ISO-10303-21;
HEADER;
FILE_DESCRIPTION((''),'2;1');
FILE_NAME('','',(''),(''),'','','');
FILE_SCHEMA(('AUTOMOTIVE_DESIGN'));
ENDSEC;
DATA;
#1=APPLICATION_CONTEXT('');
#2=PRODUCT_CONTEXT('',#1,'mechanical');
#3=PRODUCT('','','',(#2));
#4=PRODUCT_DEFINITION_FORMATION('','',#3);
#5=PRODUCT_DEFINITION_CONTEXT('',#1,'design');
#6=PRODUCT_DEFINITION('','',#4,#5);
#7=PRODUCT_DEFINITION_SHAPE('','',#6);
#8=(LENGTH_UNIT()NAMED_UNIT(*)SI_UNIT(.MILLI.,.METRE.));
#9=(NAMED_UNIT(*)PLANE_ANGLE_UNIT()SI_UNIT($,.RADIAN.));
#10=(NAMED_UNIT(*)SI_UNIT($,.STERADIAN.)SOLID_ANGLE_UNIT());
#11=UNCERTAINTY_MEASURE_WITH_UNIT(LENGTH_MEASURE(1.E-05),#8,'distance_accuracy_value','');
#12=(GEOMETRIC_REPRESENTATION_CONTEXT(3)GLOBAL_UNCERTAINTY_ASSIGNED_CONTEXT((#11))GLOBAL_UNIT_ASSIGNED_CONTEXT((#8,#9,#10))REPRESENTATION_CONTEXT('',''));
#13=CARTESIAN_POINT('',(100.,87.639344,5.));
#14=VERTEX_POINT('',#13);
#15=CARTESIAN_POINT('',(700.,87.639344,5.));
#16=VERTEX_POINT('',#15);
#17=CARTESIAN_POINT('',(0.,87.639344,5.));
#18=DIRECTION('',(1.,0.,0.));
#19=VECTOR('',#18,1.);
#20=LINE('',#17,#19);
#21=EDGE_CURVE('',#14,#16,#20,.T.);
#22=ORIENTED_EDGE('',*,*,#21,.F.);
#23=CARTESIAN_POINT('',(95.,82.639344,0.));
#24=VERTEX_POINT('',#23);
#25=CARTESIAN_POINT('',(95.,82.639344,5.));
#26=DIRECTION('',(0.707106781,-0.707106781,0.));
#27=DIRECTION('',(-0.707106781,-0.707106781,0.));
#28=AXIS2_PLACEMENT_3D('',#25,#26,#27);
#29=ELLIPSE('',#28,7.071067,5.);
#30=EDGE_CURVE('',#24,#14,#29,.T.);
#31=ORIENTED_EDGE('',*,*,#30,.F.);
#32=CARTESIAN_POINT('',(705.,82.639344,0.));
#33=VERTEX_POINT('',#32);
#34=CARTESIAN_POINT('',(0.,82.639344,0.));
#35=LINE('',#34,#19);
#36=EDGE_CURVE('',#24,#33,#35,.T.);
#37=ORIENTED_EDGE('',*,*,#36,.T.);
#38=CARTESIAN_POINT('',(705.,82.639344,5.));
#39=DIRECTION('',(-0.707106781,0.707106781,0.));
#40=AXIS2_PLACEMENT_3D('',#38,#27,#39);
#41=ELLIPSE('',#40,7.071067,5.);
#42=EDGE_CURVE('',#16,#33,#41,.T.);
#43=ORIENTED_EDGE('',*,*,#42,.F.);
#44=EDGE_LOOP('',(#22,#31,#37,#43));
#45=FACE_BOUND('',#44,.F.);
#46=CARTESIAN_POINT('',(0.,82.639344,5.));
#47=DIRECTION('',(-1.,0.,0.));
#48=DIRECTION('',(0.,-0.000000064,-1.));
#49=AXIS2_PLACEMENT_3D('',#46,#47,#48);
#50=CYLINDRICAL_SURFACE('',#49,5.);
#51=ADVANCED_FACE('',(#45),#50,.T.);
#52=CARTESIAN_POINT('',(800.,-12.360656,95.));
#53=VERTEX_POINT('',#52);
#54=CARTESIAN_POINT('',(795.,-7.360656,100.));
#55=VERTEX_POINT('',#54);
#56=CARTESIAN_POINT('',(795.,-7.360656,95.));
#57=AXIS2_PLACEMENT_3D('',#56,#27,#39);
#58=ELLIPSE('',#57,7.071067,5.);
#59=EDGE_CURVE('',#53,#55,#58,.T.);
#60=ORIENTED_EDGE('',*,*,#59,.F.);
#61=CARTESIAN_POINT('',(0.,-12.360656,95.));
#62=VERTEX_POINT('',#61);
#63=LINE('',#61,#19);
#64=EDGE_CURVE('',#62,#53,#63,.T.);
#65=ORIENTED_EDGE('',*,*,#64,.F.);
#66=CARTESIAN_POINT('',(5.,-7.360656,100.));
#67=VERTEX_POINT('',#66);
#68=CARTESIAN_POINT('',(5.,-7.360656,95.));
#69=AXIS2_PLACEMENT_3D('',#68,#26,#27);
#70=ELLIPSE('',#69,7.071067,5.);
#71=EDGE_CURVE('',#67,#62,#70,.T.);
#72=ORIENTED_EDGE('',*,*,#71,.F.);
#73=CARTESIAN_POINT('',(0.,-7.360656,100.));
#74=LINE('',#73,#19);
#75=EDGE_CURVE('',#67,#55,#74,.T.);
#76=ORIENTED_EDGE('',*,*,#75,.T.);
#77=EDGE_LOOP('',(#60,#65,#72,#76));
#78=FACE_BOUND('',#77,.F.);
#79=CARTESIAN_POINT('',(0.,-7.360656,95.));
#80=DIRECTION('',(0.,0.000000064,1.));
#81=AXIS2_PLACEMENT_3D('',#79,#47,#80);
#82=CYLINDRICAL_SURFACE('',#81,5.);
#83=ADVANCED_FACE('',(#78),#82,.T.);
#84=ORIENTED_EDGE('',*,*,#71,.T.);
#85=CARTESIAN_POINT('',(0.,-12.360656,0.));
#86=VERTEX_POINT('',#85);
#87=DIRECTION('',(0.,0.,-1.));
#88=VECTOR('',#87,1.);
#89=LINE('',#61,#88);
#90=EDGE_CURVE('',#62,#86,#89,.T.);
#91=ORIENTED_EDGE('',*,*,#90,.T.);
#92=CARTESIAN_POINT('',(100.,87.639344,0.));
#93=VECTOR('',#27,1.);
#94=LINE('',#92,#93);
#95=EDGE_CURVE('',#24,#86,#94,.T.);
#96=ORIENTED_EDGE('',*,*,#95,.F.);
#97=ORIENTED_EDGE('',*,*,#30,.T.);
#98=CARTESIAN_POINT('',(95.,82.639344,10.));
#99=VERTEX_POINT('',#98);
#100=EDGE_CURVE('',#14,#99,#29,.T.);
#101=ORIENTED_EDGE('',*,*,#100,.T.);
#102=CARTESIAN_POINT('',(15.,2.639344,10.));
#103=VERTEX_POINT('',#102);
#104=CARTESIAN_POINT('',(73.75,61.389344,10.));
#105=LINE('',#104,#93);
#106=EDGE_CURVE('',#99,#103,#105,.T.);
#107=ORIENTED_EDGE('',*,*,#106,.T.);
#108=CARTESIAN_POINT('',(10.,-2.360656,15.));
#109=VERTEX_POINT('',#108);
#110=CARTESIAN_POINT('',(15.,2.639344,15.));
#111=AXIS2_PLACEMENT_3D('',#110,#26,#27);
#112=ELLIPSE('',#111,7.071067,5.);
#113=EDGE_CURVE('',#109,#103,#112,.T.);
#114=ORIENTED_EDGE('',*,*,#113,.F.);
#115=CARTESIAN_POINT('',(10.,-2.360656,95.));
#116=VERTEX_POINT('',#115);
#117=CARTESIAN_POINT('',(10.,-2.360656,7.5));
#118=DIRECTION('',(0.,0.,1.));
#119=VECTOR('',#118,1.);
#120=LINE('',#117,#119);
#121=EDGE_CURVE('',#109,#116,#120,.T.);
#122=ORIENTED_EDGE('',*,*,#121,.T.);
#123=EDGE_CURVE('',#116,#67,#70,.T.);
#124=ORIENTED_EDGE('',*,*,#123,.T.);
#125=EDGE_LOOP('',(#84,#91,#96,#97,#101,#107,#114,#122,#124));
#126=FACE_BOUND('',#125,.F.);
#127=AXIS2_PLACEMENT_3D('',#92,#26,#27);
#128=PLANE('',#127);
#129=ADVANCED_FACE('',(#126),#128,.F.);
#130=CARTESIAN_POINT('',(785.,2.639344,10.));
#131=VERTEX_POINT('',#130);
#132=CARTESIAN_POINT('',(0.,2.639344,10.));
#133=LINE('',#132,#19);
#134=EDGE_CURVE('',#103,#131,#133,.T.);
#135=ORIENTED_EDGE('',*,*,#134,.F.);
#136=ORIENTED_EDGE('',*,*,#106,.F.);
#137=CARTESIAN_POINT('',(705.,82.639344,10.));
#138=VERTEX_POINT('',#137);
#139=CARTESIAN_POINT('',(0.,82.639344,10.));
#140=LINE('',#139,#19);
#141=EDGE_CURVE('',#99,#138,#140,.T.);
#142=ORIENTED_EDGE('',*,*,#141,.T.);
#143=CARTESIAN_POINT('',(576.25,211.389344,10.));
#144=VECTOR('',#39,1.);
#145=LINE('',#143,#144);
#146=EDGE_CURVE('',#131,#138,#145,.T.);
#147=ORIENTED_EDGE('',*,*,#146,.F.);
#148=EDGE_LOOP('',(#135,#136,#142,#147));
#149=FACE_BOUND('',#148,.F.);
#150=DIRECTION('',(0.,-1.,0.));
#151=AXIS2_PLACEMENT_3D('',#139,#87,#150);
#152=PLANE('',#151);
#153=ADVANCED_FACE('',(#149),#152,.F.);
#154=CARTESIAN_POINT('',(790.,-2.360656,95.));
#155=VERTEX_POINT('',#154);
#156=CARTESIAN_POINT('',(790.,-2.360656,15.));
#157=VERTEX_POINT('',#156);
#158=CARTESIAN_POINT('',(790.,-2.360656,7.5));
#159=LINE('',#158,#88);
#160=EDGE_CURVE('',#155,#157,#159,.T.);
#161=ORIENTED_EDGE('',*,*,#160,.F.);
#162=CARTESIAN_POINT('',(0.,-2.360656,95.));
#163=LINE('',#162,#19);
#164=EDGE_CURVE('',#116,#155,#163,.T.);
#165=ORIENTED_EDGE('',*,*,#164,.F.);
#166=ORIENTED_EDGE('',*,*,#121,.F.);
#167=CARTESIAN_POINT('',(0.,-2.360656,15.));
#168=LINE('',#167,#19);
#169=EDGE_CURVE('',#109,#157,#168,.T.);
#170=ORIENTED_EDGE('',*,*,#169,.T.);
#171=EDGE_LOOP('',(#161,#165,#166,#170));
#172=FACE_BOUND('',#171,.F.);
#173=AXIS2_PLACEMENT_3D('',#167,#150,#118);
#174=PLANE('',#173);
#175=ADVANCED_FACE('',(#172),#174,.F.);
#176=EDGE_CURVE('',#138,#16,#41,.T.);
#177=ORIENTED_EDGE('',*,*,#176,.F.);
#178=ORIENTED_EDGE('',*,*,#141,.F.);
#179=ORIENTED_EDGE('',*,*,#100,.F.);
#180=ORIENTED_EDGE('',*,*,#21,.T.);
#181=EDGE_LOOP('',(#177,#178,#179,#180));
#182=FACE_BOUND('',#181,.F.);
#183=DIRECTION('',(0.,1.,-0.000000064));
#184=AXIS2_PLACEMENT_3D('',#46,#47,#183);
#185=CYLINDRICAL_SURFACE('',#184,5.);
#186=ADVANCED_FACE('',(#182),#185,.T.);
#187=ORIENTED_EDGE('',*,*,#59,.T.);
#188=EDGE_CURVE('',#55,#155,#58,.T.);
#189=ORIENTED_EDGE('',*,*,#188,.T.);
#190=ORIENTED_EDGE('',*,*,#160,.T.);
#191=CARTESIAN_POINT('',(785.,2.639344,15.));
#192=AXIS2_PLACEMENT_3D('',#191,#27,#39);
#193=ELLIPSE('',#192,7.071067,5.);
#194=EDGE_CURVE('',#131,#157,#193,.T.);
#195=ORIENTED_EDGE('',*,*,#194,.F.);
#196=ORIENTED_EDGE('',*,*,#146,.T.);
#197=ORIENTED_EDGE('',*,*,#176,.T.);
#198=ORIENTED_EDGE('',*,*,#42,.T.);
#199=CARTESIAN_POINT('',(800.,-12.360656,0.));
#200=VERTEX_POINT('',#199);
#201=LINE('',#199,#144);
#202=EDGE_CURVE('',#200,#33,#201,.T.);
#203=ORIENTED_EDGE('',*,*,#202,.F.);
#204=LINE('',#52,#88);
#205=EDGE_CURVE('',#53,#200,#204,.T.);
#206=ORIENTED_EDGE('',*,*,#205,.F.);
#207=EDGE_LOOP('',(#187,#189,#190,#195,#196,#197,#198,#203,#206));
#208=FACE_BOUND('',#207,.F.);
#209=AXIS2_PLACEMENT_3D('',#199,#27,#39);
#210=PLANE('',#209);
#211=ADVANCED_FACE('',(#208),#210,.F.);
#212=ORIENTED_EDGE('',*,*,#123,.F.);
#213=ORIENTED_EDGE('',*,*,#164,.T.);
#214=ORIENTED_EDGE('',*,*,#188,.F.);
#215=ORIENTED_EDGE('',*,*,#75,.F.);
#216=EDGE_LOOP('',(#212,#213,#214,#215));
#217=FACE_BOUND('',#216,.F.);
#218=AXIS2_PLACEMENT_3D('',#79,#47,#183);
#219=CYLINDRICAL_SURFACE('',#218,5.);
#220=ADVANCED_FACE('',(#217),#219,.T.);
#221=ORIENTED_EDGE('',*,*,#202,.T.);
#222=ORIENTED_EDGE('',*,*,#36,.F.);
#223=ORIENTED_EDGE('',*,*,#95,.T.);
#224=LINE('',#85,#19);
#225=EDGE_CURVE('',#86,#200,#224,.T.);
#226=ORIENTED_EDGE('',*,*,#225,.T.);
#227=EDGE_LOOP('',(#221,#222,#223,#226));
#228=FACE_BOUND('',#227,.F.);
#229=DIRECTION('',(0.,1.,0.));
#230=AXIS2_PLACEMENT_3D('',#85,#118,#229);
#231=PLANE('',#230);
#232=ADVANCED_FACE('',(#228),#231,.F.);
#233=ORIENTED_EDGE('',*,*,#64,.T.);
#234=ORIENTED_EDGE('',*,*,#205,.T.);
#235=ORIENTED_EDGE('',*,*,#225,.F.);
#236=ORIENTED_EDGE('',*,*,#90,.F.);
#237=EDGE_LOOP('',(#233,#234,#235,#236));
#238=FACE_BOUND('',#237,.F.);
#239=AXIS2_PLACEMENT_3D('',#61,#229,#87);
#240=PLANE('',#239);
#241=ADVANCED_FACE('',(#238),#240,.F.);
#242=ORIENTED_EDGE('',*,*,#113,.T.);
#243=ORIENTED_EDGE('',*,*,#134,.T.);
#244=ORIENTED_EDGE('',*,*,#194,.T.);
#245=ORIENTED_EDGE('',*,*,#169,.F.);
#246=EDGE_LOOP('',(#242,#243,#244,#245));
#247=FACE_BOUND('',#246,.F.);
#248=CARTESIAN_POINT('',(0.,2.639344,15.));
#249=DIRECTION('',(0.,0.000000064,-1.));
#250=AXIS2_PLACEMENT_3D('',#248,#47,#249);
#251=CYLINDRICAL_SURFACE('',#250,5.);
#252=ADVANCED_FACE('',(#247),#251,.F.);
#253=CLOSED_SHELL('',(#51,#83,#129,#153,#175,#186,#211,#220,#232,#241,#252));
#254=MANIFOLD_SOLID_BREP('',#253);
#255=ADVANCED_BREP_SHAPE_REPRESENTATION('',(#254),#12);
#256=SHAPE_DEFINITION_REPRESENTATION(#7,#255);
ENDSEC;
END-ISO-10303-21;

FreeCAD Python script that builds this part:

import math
import FreeCAD as App
import Part
import Sketcher


def add_polygon(sketch, points):
    """Adds a closed chain of lines whose ends are joined by coincident constraints."""
    first, n = sketch.GeometryCount, len(points)
    for a, b in zip(points, points[1:] + points[:1]):
        sketch.addGeometry(Part.LineSegment(App.Vector(*a, 0), App.Vector(*b, 0)), False)
    for i in range(n):
        sketch.addConstraint(Sketcher.Constraint("Coincident", first + i, 2, first + (i + 1) % n, 1))

doc = App.newDocument("Part")
params = doc.addObject("Spreadsheet::Sheet", "Params")
for row, (alias, value) in enumerate([
    ("sketch1_radius", "5 mm"),
    ("sketch1_width", "95 mm"),
    ("pad1_length", "800 mm"),
    ("sketch2_width", "100 mm"),
    ("pocket1_length", "100 mm"),
    ("sketch3_width", "100 mm"),
], start=1):
    params.set(f"A{row}", alias)
    params.set(f"B{row}", "=" + value)
    params.setAlias(f"B{row}", alias)

body = doc.addObject("PartDesign::Body", "Body")

# Sketch on YZ plane
sketch1 = doc.addObject("Sketcher::SketchObject", "Sketch")
body.addObject(sketch1)
sketch1.AttachmentSupport = (doc.YZ_Plane, [""])
sketch1.MapMode = "FlatFace"
sketch1.addGeometry([
    Part.LineSegment(App.Vector(-12.4, 95, 0), App.Vector(-12.4, 0, 0)),  # 0
    Part.LineSegment(App.Vector(-12.4, 0, 0), App.Vector(82.6, 0, 0)),  # 1
    Part.ArcOfCircle(Part.Circle(App.Vector(82.6, 5, 0), App.Vector(0, 0, 1), 5), math.radians(-90), math.radians(0)),  # 2
    Part.ArcOfCircle(Part.Circle(App.Vector(82.6, 5, 0), App.Vector(0, 0, 1), 5), math.radians(0), math.radians(90)),  # 3
    Part.LineSegment(App.Vector(82.6, 10, 0), App.Vector(2.6, 10, 0)),  # 4
    Part.ArcOfCircle(Part.Circle(App.Vector(2.6, 15, 0), App.Vector(0, 0, 1), 5), math.radians(180), math.radians(270)),  # 5
    Part.LineSegment(App.Vector(-2.4, 15, 0), App.Vector(-2.4, 95, 0)),  # 6
    Part.ArcOfCircle(Part.Circle(App.Vector(-7.4, 95, 0), App.Vector(0, 0, 1), 5), math.radians(0), math.radians(90)),  # 7
    Part.ArcOfCircle(Part.Circle(App.Vector(-7.4, 95, 0), App.Vector(0, 0, 1), 5), math.radians(90), math.radians(180)),  # 8
], False)
sketch1.addConstraint([
    Sketcher.Constraint("Coincident", 0, 2, 1, 1),
    Sketcher.Constraint("Tangent", 1, 2, 2, 1),
    Sketcher.Constraint("Tangent", 2, 2, 3, 1),
    Sketcher.Constraint("Tangent", 3, 2, 4, 1),
    Sketcher.Constraint("Tangent", 4, 2, 5, 2),
    Sketcher.Constraint("Tangent", 5, 1, 6, 1),
    Sketcher.Constraint("Tangent", 6, 2, 7, 1),
    Sketcher.Constraint("Tangent", 7, 2, 8, 1),
    Sketcher.Constraint("Tangent", 8, 2, 0, 1),
    Sketcher.Constraint("Vertical", 0),
    Sketcher.Constraint("Horizontal", 1),
    Sketcher.Constraint("Horizontal", 4),
    Sketcher.Constraint("Vertical", 6),
    Sketcher.Constraint("Equal", 2, 3),
    Sketcher.Constraint("Equal", 3, 5),
    Sketcher.Constraint("Equal", 5, 7),
    Sketcher.Constraint("Equal", 7, 8),
    Sketcher.Constraint("PointOnObject", 0, 2, -1),
    Sketcher.Constraint("Horizontal", 3, 3, 2, 2),
    Sketcher.Constraint("Vertical", 8, 3, 7, 2),
    Sketcher.Constraint("Equal", 1, 0),
    Sketcher.Constraint("Radius", 2, 5.0),
    Sketcher.Constraint("DistanceX", 1, 1, 1, 2, 95.0),
    Sketcher.Constraint("DistanceX", -1, 1, 2, 3, 82.639344),
])
sketch1.setExpression("Constraints[21]", "Params.sketch1_radius")
sketch1.setExpression("Constraints[22]", "Params.sketch1_width")
pad1 = doc.addObject("PartDesign::Pad", "Pad")
body.addObject(pad1)
pad1.Profile = sketch1
pad1.setExpression("Length", "Params.pad1_length")

# Sketch on XY plane
sketch2 = doc.addObject("Sketcher::SketchObject", "Sketch001")
body.addObject(sketch2)
sketch2.AttachmentSupport = (doc.XY_Plane, [""])
sketch2.MapMode = "FlatFace"
add_polygon(sketch2, [(800, -12), (700, 88), (800, 88)])  # lines 0-2
sketch2.addConstraint([
    Sketcher.Constraint("Horizontal", 1),
    Sketcher.Constraint("Vertical", 2),
    Sketcher.Constraint("Equal", 1, 2),
    Sketcher.Constraint("DistanceX", 1, 1, 1, 2, 100.0),
    Sketcher.Constraint("DistanceX", -1, 1, 0, 2, 700.0),
    Sketcher.Constraint("DistanceY", -1, 1, 0, 2, 87.639344),
])
sketch2.setExpression("Constraints[6]", "Params.sketch2_width")
pocket1 = doc.addObject("PartDesign::Pocket", "Pocket")
body.addObject(pocket1)
pocket1.Profile = sketch2
pocket1.setExpression("Length", "Params.pocket1_length")
pocket1.Reversed = True

# Sketch on XY plane
sketch3 = doc.addObject("Sketcher::SketchObject", "Sketch002")
body.addObject(sketch3)
sketch3.AttachmentSupport = (doc.XY_Plane, [""])
sketch3.MapMode = "FlatFace"
add_polygon(sketch3, [(0, 88), (100, 88), (0, -12)])  # lines 0-2
sketch3.addConstraint([
    Sketcher.Constraint("Horizontal", 0),
    Sketcher.Constraint("Vertical", 2),
    Sketcher.Constraint("PointOnObject", 1, 2, -2),
    Sketcher.Constraint("Equal", 0, 2),
    Sketcher.Constraint("DistanceX", 0, 1, 0, 2, 100.0),
    Sketcher.Constraint("DistanceY", -1, 1, 0, 2, 87.639344),
])
sketch3.setExpression("Constraints[7]", "Params.sketch3_width")
pocket2 = doc.addObject("PartDesign::Pocket", "Pocket001")
body.addObject(pocket2)
pocket2.Profile = sketch3
pocket2.Type = "ThroughAll"
pocket2.Reversed = True

doc.recompute()
